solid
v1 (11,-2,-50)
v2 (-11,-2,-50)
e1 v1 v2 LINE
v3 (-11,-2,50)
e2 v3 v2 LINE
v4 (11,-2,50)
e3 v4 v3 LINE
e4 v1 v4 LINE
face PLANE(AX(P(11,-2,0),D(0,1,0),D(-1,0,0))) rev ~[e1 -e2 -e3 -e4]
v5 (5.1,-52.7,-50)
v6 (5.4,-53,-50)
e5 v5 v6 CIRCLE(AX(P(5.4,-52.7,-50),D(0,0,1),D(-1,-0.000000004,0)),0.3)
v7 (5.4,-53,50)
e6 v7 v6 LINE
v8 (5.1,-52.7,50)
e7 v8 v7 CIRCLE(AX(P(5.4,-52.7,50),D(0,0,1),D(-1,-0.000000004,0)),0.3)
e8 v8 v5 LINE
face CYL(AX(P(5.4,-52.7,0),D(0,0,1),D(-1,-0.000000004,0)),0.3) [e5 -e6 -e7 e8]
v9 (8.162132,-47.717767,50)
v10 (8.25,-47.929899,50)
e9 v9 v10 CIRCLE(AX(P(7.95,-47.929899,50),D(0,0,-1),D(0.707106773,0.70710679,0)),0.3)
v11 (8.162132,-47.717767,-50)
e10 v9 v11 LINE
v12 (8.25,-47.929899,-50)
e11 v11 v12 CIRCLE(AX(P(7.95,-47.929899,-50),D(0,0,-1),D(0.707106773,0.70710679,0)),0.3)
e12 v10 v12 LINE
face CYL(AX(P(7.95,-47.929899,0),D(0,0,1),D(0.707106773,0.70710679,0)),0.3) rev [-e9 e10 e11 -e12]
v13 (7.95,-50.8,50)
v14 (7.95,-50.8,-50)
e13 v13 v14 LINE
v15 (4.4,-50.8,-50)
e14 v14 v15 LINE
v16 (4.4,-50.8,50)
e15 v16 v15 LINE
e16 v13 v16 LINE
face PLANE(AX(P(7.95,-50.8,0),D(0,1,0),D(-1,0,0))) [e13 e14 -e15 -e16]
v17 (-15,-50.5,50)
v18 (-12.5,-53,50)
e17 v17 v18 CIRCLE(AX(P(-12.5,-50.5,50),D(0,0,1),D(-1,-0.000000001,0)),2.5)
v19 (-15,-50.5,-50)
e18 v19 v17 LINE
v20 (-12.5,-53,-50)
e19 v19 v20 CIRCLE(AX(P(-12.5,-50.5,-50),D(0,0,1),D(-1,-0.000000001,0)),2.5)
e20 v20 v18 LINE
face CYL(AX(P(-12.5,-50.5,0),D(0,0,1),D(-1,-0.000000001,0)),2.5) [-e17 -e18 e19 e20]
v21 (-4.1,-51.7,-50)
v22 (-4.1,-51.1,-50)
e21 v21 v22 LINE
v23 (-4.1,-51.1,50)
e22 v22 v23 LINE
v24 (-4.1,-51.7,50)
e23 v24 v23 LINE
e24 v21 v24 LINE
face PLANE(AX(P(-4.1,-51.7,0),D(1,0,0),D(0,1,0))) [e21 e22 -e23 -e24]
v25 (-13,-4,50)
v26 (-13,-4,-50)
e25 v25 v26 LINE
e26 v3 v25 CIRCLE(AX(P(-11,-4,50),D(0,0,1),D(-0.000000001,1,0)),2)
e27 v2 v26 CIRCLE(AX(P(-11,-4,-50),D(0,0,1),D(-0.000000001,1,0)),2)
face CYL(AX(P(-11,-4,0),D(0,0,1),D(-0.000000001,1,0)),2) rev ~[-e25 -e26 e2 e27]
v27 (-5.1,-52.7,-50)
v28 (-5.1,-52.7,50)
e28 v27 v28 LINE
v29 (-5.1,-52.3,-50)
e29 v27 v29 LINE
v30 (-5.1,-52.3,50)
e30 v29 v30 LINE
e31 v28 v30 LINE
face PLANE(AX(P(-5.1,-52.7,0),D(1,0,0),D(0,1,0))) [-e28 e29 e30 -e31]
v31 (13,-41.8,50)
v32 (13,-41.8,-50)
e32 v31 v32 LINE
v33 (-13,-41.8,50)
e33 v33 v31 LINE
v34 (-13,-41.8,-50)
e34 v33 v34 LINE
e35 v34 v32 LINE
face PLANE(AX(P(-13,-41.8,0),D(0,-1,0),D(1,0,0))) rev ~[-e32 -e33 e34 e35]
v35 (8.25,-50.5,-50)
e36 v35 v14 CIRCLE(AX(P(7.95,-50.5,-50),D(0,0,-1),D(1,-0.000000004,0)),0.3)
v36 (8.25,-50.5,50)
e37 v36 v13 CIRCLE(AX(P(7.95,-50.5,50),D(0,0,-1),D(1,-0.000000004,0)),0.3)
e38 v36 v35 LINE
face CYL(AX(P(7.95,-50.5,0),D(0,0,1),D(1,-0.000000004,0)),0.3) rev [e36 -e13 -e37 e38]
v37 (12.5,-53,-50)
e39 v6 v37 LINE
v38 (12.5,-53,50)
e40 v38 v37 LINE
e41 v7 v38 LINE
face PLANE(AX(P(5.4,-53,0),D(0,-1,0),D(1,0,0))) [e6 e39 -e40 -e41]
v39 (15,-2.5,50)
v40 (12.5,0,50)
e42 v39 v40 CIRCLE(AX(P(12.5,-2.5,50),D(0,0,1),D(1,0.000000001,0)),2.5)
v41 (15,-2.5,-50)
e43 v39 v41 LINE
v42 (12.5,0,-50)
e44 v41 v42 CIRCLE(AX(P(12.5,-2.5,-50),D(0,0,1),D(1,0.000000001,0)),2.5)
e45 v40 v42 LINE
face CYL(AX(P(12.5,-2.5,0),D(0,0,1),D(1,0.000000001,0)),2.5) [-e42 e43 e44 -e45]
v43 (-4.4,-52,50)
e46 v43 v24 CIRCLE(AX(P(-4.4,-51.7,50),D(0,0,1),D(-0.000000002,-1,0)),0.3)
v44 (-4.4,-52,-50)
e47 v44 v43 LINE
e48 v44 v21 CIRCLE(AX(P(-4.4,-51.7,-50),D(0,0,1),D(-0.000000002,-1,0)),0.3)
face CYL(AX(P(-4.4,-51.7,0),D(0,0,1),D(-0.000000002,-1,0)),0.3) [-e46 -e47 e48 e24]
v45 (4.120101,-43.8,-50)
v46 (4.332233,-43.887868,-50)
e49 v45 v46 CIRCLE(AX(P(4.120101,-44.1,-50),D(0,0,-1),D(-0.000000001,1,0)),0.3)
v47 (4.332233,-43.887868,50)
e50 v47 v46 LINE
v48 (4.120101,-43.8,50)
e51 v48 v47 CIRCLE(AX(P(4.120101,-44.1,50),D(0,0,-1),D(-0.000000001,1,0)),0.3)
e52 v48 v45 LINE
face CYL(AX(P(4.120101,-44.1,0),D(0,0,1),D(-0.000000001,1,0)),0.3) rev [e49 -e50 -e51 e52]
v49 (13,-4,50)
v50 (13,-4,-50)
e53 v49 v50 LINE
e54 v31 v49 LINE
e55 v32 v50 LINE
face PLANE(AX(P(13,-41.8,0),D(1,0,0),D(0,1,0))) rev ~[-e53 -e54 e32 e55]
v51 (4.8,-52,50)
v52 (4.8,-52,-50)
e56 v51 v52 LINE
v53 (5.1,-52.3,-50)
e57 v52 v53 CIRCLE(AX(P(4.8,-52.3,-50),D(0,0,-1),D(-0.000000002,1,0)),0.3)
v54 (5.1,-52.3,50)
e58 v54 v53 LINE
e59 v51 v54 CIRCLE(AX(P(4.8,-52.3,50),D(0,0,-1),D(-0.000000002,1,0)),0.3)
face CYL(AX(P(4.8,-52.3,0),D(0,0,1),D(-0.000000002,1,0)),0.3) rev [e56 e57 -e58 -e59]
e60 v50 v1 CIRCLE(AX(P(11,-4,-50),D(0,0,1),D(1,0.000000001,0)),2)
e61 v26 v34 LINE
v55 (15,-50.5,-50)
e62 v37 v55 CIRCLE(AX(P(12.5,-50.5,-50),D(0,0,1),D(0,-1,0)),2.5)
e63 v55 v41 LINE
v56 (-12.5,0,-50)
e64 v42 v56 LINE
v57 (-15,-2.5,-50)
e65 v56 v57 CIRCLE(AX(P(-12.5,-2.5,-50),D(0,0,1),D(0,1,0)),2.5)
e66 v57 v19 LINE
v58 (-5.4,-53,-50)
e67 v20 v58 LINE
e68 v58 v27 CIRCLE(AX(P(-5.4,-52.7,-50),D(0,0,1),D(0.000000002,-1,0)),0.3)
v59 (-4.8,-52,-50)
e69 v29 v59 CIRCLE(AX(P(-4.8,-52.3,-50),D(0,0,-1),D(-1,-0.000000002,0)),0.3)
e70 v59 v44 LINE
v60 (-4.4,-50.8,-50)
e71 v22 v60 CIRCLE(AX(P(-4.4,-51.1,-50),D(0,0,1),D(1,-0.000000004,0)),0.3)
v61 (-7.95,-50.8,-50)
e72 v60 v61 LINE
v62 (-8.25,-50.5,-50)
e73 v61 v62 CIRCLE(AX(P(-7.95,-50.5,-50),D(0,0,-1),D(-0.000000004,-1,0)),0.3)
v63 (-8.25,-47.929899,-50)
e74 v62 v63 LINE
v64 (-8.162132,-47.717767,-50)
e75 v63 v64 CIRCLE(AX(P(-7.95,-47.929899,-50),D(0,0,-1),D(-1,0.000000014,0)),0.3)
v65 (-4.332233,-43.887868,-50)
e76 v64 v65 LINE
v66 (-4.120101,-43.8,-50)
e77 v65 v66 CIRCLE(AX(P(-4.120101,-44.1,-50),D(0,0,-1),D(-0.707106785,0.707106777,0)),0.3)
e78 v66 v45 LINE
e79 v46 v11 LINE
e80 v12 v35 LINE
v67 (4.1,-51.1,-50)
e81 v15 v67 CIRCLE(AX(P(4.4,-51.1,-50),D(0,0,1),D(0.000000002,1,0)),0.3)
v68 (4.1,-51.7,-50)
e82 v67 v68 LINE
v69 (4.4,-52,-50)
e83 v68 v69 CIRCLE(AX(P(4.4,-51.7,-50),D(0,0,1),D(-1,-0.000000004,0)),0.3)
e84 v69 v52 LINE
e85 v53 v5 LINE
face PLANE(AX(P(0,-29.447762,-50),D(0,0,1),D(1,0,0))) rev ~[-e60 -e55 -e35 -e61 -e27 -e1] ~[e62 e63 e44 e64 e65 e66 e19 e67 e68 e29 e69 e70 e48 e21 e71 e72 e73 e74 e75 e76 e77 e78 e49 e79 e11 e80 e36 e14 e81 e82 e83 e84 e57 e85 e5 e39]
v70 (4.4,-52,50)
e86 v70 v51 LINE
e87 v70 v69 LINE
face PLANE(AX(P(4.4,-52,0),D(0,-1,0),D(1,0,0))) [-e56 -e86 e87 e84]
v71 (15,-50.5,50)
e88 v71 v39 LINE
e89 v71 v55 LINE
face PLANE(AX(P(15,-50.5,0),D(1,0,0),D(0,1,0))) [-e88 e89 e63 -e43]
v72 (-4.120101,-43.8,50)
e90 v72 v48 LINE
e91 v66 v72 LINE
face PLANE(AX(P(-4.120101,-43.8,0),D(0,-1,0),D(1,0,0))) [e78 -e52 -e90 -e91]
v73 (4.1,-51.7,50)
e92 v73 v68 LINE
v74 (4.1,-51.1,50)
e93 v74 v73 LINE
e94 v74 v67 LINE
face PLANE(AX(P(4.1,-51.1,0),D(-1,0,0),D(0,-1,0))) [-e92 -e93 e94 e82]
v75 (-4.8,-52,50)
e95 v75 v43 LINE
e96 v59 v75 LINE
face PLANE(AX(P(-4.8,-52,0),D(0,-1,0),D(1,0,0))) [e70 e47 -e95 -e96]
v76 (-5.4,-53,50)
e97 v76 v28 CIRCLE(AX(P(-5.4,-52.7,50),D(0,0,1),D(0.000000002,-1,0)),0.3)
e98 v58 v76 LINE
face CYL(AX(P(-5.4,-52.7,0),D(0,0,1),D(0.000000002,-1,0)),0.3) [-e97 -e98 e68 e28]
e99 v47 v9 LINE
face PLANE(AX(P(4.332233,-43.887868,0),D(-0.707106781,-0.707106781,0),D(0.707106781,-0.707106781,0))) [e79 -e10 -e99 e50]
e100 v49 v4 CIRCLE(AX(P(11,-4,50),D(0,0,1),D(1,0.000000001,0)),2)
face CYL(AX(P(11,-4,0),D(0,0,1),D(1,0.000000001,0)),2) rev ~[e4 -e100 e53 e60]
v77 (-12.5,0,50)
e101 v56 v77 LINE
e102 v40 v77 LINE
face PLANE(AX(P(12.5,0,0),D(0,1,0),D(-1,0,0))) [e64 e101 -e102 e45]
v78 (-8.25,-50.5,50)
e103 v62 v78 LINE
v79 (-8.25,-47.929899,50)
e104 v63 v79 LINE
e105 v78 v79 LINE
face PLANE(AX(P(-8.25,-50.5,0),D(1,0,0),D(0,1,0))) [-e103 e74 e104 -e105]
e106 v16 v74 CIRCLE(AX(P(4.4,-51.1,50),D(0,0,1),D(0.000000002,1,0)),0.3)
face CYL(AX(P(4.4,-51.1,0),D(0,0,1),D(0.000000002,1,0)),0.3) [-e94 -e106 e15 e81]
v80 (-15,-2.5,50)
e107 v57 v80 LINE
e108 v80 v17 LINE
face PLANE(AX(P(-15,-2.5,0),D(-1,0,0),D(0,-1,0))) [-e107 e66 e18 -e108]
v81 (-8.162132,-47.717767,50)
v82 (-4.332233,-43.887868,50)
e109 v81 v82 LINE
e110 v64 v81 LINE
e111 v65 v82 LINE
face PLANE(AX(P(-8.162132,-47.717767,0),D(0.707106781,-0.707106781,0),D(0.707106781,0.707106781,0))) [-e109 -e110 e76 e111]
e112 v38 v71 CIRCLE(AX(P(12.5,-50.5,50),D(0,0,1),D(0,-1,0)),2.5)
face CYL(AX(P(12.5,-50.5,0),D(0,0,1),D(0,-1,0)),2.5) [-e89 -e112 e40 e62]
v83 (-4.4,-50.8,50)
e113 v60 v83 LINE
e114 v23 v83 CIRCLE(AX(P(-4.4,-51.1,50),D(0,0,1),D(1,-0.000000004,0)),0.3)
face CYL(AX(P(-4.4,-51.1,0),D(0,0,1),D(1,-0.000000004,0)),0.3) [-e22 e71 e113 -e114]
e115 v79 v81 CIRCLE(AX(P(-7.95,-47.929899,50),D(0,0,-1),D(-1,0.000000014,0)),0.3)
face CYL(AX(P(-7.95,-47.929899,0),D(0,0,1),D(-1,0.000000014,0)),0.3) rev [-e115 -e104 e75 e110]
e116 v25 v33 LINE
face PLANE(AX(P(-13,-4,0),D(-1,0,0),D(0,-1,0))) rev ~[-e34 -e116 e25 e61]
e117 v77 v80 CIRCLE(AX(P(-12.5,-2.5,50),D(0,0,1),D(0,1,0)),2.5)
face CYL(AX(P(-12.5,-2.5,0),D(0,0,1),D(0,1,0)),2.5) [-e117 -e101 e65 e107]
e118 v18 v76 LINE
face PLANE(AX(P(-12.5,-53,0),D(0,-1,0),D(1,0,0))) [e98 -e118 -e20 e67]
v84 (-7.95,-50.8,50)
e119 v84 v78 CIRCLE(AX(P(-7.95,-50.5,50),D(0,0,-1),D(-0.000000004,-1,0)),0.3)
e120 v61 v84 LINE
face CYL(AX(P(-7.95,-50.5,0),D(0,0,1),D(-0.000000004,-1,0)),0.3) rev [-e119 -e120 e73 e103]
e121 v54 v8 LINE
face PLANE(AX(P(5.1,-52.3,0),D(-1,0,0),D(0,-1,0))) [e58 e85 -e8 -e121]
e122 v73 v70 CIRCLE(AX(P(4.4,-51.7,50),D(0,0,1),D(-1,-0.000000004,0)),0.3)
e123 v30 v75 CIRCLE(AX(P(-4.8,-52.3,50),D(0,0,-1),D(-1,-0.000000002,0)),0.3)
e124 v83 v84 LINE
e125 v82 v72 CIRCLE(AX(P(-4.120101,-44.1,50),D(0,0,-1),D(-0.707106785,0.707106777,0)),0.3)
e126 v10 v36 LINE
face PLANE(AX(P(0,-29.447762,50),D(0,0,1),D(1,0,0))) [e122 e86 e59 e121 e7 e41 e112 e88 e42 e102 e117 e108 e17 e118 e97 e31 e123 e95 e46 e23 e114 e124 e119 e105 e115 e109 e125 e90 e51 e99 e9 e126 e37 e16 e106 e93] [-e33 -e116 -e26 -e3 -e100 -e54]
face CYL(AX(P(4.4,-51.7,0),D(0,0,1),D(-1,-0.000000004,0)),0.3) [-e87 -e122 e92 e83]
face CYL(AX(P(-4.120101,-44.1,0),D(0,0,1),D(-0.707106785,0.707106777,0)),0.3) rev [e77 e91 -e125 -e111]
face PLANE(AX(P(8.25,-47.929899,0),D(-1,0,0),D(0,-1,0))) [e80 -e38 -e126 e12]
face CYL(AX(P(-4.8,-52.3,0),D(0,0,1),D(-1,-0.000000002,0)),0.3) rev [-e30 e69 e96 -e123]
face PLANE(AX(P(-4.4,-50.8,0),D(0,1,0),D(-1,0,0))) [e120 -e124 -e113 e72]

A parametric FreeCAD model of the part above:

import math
import FreeCAD as App
import Part
import Sketcher
from FreeCAD import Vector

doc = App.newDocument("Part")
body = doc.addObject("PartDesign::Body", "Body")

# Sketch on XY plane
sketch1 = body.newObject("Sketcher::SketchObject", "Sketch")
sketch1.AttachmentSupport = (doc.getObject("XY_Plane"), [""])
sketch1.MapMode = "FlatFace"
sketch1.addGeometry([
    Part.LineSegment(Vector(12.5, 0, 0), Vector(-12.5, 0, 0)),  # 0
    Part.ArcOfCircle(Part.Circle(Vector(-12.5, -2.5, 0), Vector(0, 0, 1), 2.5), math.radians(90), math.radians(180)),  # 1
    Part.LineSegment(Vector(-15, -2.5, 0), Vector(-15, -50.5, 0)),  # 2
    Part.ArcOfCircle(Part.Circle(Vector(-12.5, -50.5, 0), Vector(0, 0, 1), 2.5), math.radians(-180), math.radians(-90)),  # 3
    Part.LineSegment(Vector(-12.5, -53, 0), Vector(-5.4, -53, 0)),  # 4
    Part.ArcOfCircle(Part.Circle(Vector(-5.4, -52.7, 0), Vector(0, 0, 1), 0.3), math.radians(-90), math.radians(0)),  # 5
    Part.LineSegment(Vector(-5.1, -52.7, 0), Vector(-5.1, -52.3, 0)),  # 6
    Part.ArcOfCircle(Part.Circle(Vector(-4.8, -52.3, 0), Vector(0, 0, 1), 0.3), math.radians(90), math.radians(180)),  # 7
    Part.LineSegment(Vector(-4.8, -52, 0), Vector(-4.4, -52, 0)),  # 8
    Part.ArcOfCircle(Part.Circle(Vector(-4.4, -51.7, 0), Vector(0, 0, 1), 0.3), math.radians(-90), math.radians(0)),  # 9
    Part.LineSegment(Vector(-4.1, -51.7, 0), Vector(-4.1, -51.1, 0)),  # 10
    Part.ArcOfCircle(Part.Circle(Vector(-4.4, -51.1, 0), Vector(0, 0, 1), 0.3), math.radians(0), math.radians(90)),  # 11
    Part.LineSegment(Vector(-4.4, -50.8, 0), Vector(-7.95, -50.8, 0)),  # 12
    Part.ArcOfCircle(Part.Circle(Vector(-7.95, -50.5, 0), Vector(0, 0, 1), 0.3), math.radians(-180), math.radians(-90)),  # 13
    Part.LineSegment(Vector(-8.25, -50.5, 0), Vector(-8.25, -47.93, 0)),  # 14
    Part.ArcOfCircle(Part.Circle(Vector(-7.95, -47.93, 0), Vector(0, 0, 1), 0.3), math.radians(135), math.radians(180)),  # 15
    Part.LineSegment(Vector(-8.16, -47.72, 0), Vector(-4.33, -43.89, 0)),  # 16
    Part.ArcOfCircle(Part.Circle(Vector(-4.12, -44.1, 0), Vector(0, 0, 1), 0.3), math.radians(90), math.radians(135)),  # 17
    Part.LineSegment(Vector(-4.12, -43.8, 0), Vector(4.12, -43.8, 0)),  # 18
    Part.ArcOfCircle(Part.Circle(Vector(4.12, -44.1, 0), Vector(0, 0, 1), 0.3), math.radians(45), math.radians(90)),  # 19
    Part.LineSegment(Vector(4.33, -43.89, 0), Vector(8.16, -47.72, 0)),  # 20
    Part.ArcOfCircle(Part.Circle(Vector(7.95, -47.93, 0), Vector(0, 0, 1), 0.3), math.radians(0), math.radians(45)),  # 21
    Part.LineSegment(Vector(8.25, -47.93, 0), Vector(8.25, -50.5, 0)),  # 22
    Part.ArcOfCircle(Part.Circle(Vector(7.95, -50.5, 0), Vector(0, 0, 1), 0.3), math.radians(-90), math.radians(0)),  # 23
    Part.LineSegment(Vector(7.95, -50.8, 0), Vector(4.4, -50.8, 0)),  # 24
    Part.ArcOfCircle(Part.Circle(Vector(4.4, -51.1, 0), Vector(0, 0, 1), 0.3), math.radians(90), math.radians(180)),  # 25
    Part.LineSegment(Vector(4.1, -51.1, 0), Vector(4.1, -51.7, 0)),  # 26
    Part.ArcOfCircle(Part.Circle(Vector(4.4, -51.7, 0), Vector(0, 0, 1), 0.3), math.radians(-180), math.radians(-90)),  # 27
    Part.LineSegment(Vector(4.4, -52, 0), Vector(4.8, -52, 0)),  # 28
    Part.ArcOfCircle(Part.Circle(Vector(4.8, -52.3, 0), Vector(0, 0, 1), 0.3), math.radians(0), math.radians(90)),  # 29
    Part.LineSegment(Vector(5.1, -52.3, 0), Vector(5.1, -52.7, 0)),  # 30
    Part.ArcOfCircle(Part.Circle(Vector(5.4, -52.7, 0), Vector(0, 0, 1), 0.3), math.radians(-180), math.radians(-90)),  # 31
    Part.LineSegment(Vector(5.4, -53, 0), Vector(12.5, -53, 0)),  # 32
    Part.ArcOfCircle(Part.Circle(Vector(12.5, -50.5, 0), Vector(0, 0, 1), 2.5), math.radians(-90), math.radians(0)),  # 33
    Part.LineSegment(Vector(15, -50.5, 0), Vector(15, -2.5, 0)),  # 34
    Part.ArcOfCircle(Part.Circle(Vector(12.5, -2.5, 0), Vector(0, 0, 1), 2.5), math.radians(0), math.radians(90)),  # 35
    Part.LineSegment(Vector(-11, -2, 0), Vector(11, -2, 0)),  # 36
    Part.ArcOfCircle(Part.Circle(Vector(11, -4, 0), Vector(0, 0, 1), 2), math.radians(0), math.radians(90)),  # 37
    Part.LineSegment(Vector(13, -4, 0), Vector(13, -41.8, 0)),  # 38
    Part.LineSegment(Vector(13, -41.8, 0), Vector(-13, -41.8, 0)),  # 39
    Part.LineSegment(Vector(-13, -41.8, 0), Vector(-13, -4, 0)),  # 40
    Part.ArcOfCircle(Part.Circle(Vector(-11, -4, 0), Vector(0, 0, 1), 2), math.radians(90), math.radians(180)),  # 41
], False)
sketch1.addConstraint([
    Sketcher.Constraint("Tangent", 0, 2, 1, 1),
    Sketcher.Constraint("Tangent", 1, 2, 2, 1),
    Sketcher.Constraint("Tangent", 2, 2, 3, 1),
    Sketcher.Constraint("Tangent", 3, 2, 4, 1),
    Sketcher.Constraint("Tangent", 4, 2, 5, 1),
    Sketcher.Constraint("Tangent", 5, 2, 6, 1),
    Sketcher.Constraint("Tangent", 6, 2, 7, 2),
    Sketcher.Constraint("Tangent", 7, 1, 8, 1),
    Sketcher.Constraint("Tangent", 8, 2, 9, 1),
    Sketcher.Constraint("Tangent", 9, 2, 10, 1),
    Sketcher.Constraint("Tangent", 10, 2, 11, 1),
    Sketcher.Constraint("Tangent", 11, 2, 12, 1),
    Sketcher.Constraint("Tangent", 12, 2, 13, 2),
    Sketcher.Constraint("Tangent", 13, 1, 14, 1),
    Sketcher.Constraint("Tangent", 14, 2, 15, 2),
    Sketcher.Constraint("Tangent", 15, 1, 16, 1),
    Sketcher.Constraint("Tangent", 16, 2, 17, 2),
    Sketcher.Constraint("Tangent", 17, 1, 18, 1),
    Sketcher.Constraint("Tangent", 18, 2, 19, 2),
    Sketcher.Constraint("Tangent", 19, 1, 20, 1),
    Sketcher.Constraint("Tangent", 20, 2, 21, 2),
    Sketcher.Constraint("Tangent", 21, 1, 22, 1),
    Sketcher.Constraint("Tangent", 22, 2, 23, 2),
    Sketcher.Constraint("Tangent", 23, 1, 24, 1),
    Sketcher.Constraint("Tangent", 24, 2, 25, 1),
    Sketcher.Constraint("Tangent", 25, 2, 26, 1),
    Sketcher.Constraint("Tangent", 26, 2, 27, 1),
    Sketcher.Constraint("Tangent", 27, 2, 28, 1),
    Sketcher.Constraint("Tangent", 28, 2, 29, 2),
    Sketcher.Constraint("Tangent", 29, 1, 30, 1),
    Sketcher.Constraint("Tangent", 30, 2, 31, 1),
    Sketcher.Constraint("Tangent", 31, 2, 32, 1),
    Sketcher.Constraint("Tangent", 32, 2, 33, 1),
    Sketcher.Constraint("Tangent", 33, 2, 34, 1),
    Sketcher.Constraint("Tangent", 34, 2, 35, 1),
    Sketcher.Constraint("Tangent", 35, 2, 0, 1),
    Sketcher.Constraint("Tangent", 36, 2, 37, 2),
    Sketcher.Constraint("Tangent", 37, 1, 38, 1),
    Sketcher.Constraint("Coincident", 38, 2, 39, 1),
    Sketcher.Constraint("Coincident", 39, 2, 40, 1),
    Sketcher.Constraint("Tangent", 40, 2, 41, 2),
    Sketcher.Constraint("Tangent", 41, 1, 36, 1),
    Sketcher.Constraint("Horizontal", 0),
    Sketcher.Constraint("Vertical", 2),
    Sketcher.Constraint("Horizontal", 4),
    Sketcher.Constraint("Vertical", 6),
    Sketcher.Constraint("Horizontal", 8),
    Sketcher.Constraint("Vertical", 10),
    Sketcher.Constraint("Horizontal", 12),
    Sketcher.Constraint("Vertical", 14),
    Sketcher.Constraint("Horizontal", 18),
    Sketcher.Constraint("Vertical", 22),
    Sketcher.Constraint("Horizontal", 24),
    Sketcher.Constraint("Vertical", 26),
    Sketcher.Constraint("Horizontal", 28),
    Sketcher.Constraint("Vertical", 30),
    Sketcher.Constraint("Horizontal", 32),
    Sketcher.Constraint("Vertical", 34),
    Sketcher.Constraint("Horizontal", 36),
    Sketcher.Constraint("Vertical", 38),
    Sketcher.Constraint("Horizontal", 39),
    Sketcher.Constraint("Vertical", 40),
    Sketcher.Constraint("Equal", 1, 3),
    Sketcher.Constraint("Equal", 5, 7),
    Sketcher.Constraint("Equal", 7, 9),
    Sketcher.Constraint("Equal", 9, 11),
    Sketcher.Constraint("Equal", 11, 13),
    Sketcher.Constraint("Equal", 13, 15),
    Sketcher.Constraint("Equal", 15, 17),
    Sketcher.Constraint("Equal", 17, 19),
    Sketcher.Constraint("Equal", 19, 21),
    Sketcher.Constraint("Equal", 21, 23),
    Sketcher.Constraint("Equal", 23, 25),
    Sketcher.Constraint("Equal", 25, 27),
    Sketcher.Constraint("Equal", 27, 29),
    Sketcher.Constraint("Equal", 29, 31),
    Sketcher.Constraint("Equal", 3, 33),
    Sketcher.Constraint("Equal", 33, 35),
    Sketcher.Constraint("Equal", 37, 41),
    Sketcher.Constraint("Symmetric", 0, 2, 35, 2, -1, 1),
    Sketcher.Constraint("Symmetric", 15, 3, 21, 3, -2),
    Sketcher.Constraint("Symmetric", 11, 3, 25, 3, -2),
    Sketcher.Constraint("Symmetric", 7, 3, 29, 3, -2),
    Sketcher.Constraint("Perpendicular", 16, 20),
    Sketcher.Constraint("Horizontal", 3, 3, 13, 3),
    Sketcher.Constraint("Horizontal", 5, 3, 31, 3),
    Sketcher.Constraint("Horizontal", 16, 2, 19, 1),
    Sketcher.Constraint("Equal", 28, 6),
    Sketcher.Constraint("Radius", 37, 2.0),
    Sketcher.Constraint("Radius", 1, 2.5),
    Sketcher.Constraint("Radius", 5, 0.3),
    Sketcher.Constraint("DistanceX", 0, 2, 0, 1, 25.0),
    Sketcher.Constraint("DistanceX", 36, 1, 36, 2, 22.0),
    Sketcher.Constraint("DistanceY", 2, 2, 2, 1, 48.0),
    Sketcher.Constraint("DistanceX", 4, 1, 4, 2, 7.1),
    Sketcher.Constraint("DistanceX", 8, 1, 8, 2, 0.4),
    Sketcher.Constraint("DistanceY", 38, 2, 38, 1, 37.8),
    Sketcher.Constraint("DistanceX", -1, 1, 37, 3, 11.0),
    Sketcher.Constraint("DistanceY", 37, 3, -1, 1, 4.0),
    Sketcher.Constraint("DistanceX", 12, 2, 12, 1, 3.55),
    Sketcher.Constraint("DistanceY", 17, 3, -1, 1, 44.1),
    Sketcher.Constraint("DistanceY", 14, 1, 14, 2, 2.570101),
])
pad1 = body.newObject("PartDesign::Pad", "Pad")
pad1.Profile = sketch1
pad1.Length = 100
pad1.Midplane = True

doc.recompute()
